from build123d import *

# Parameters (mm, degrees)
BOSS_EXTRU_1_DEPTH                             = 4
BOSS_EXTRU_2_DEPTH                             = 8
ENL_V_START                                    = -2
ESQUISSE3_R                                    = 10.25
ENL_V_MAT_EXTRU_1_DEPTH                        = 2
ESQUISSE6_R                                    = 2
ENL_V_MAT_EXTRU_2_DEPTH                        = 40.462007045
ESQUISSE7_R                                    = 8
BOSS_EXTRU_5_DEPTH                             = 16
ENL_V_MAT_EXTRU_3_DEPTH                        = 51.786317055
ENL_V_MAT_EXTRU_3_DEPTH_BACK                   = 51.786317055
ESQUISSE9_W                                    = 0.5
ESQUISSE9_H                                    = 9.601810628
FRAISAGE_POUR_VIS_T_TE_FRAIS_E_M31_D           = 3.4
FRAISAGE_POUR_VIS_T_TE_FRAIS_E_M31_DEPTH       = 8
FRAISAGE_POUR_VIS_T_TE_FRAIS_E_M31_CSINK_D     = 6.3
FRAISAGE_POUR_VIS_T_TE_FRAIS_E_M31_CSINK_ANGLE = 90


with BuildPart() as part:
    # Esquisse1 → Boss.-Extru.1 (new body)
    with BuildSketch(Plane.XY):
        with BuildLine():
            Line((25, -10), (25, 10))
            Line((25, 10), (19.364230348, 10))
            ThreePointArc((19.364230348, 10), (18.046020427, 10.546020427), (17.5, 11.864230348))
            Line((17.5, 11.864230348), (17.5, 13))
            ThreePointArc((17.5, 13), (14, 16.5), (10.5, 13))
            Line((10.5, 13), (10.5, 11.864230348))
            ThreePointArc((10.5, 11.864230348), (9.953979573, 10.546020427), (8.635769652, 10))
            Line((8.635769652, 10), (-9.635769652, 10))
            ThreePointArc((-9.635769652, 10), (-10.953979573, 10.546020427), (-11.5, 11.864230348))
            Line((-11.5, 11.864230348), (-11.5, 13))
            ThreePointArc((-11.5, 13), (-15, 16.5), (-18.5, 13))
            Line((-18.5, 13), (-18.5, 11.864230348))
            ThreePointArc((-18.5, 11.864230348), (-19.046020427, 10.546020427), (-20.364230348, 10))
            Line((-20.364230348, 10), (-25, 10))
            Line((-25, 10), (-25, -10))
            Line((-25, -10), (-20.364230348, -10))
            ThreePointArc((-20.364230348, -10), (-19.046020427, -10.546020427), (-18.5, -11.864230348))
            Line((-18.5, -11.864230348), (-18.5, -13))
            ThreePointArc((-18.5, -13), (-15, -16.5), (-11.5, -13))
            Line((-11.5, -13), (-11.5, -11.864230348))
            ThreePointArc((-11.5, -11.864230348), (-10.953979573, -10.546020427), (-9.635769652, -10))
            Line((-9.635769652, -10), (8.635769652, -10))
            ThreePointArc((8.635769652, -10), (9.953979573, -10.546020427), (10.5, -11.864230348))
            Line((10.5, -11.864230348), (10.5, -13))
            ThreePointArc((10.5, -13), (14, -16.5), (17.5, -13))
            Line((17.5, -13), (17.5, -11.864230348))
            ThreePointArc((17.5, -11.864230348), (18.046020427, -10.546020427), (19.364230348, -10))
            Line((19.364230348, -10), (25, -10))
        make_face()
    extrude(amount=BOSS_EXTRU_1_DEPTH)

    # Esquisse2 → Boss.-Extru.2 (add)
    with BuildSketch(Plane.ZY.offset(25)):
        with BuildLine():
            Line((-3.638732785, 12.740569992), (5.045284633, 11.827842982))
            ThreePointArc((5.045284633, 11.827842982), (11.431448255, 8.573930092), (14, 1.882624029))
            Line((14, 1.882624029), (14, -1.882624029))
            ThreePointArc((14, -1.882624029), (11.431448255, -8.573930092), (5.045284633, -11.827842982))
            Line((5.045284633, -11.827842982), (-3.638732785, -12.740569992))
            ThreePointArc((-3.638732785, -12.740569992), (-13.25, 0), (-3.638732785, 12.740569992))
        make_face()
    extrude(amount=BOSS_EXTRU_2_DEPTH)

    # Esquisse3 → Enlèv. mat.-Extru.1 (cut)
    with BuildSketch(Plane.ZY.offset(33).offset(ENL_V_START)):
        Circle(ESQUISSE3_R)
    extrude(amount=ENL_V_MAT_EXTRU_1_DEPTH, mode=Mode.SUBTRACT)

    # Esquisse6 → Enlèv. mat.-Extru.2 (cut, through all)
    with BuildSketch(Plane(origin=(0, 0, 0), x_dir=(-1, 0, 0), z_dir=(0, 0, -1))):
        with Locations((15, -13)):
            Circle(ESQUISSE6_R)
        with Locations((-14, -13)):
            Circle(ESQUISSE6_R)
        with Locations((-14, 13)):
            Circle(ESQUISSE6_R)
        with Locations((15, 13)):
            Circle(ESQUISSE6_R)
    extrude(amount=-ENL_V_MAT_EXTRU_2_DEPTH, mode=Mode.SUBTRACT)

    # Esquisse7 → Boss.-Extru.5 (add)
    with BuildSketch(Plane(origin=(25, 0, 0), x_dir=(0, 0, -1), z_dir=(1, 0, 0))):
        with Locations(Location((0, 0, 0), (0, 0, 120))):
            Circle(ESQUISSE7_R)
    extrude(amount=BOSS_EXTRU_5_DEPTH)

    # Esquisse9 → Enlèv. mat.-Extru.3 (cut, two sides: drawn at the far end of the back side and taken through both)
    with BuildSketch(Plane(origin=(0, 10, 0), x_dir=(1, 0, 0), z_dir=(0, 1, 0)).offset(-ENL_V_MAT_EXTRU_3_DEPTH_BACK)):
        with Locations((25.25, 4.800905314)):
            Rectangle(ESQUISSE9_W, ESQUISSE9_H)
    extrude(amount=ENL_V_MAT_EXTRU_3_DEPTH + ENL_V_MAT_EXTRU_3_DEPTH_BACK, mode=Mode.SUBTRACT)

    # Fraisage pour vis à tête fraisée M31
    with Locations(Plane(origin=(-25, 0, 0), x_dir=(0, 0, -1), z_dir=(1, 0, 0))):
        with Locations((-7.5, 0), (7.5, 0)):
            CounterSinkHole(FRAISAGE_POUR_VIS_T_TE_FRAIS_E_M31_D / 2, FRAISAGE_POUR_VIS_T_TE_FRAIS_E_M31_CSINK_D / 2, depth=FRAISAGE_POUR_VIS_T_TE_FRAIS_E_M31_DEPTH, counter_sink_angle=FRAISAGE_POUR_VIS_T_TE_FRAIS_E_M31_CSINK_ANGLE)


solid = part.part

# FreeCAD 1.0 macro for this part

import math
import FreeCAD as App
import Part
import Sketcher
Q = App.Units.Quantity

doc = App.newDocument("Part")
params = doc.addObject("Spreadsheet::Sheet", "Params")
for row, (alias, value) in enumerate([
    ("sketch1_radius", "3.5 mm"),
    ("sketch1_height", "20 mm"),
    ("pad1_length", "4 mm"),
    ("sketch2_radius", "10 mm"),
    ("sketch2_radius2", "13.25 mm"),
    ("pad2_length", "8 mm"),
    ("sketch3_diameter", "20.5 mm"),
    ("pocket1_length", "2 mm"),
    ("sketch4_diameter", "4 mm"),
    ("sketch5_diameter", "16 mm"),
    ("pad3_length", "16 mm"),
    ("sketch6_width", "0.5 mm"),
    ("sketch7_diameter", "3.4 mm"),
    ("hole_diameter", "3.4 mm"),
    ("hole_depth", "8 mm"),
    ("hole_csink_diameter", "6.3 mm"),
], start=1):
    params.set(f"A{row}", alias)
    params.set(f"B{row}", "=" + value)
    params.setAlias(f"B{row}", alias)

body = doc.addObject("PartDesign::Body", "Body")

sketch1 = body.newObject("Sketcher::SketchObject", "Sketch")
sketch1.AttachmentSupport = (doc.getObject("XY_Plane"), [""])
sketch1.MapMode = "FlatFace"
sketch1.addGeometry(Part.LineSegment(App.Vector(25, -10, 0), App.Vector(25, 10, 0)), False)
sketch1.addGeometry(Part.LineSegment(App.Vector(25, 10, 0), App.Vector(19.4, 10, 0)), False)
sketch1.addGeometry(Part.ArcOfCircle(Part.Circle(App.Vector(19.4, 11.9, 0), App.Vector(0, 0, 1), 1.9), math.radians(180), math.radians(270)), False)
sketch1.addGeometry(Part.LineSegment(App.Vector(17.5, 11.9, 0), App.Vector(17.5, 13, 0)), False)
sketch1.addGeometry(Part.ArcOfCircle(Part.Circle(App.Vector(14, 13, 0), App.Vector(0, 0, 1), 3.5), math.radians(0), math.radians(180)), False)
sketch1.addGeometry(Part.LineSegment(App.Vector(10.5, 13, 0), App.Vector(10.5, 11.9, 0)), False)
sketch1.addGeometry(Part.ArcOfCircle(Part.Circle(App.Vector(8.6, 11.9, 0), App.Vector(0, 0, 1), 1.9), math.radians(-90), math.radians(0)), False)
sketch1.addGeometry(Part.LineSegment(App.Vector(8.6, 10, 0), App.Vector(-9.6, 10, 0)), False)
sketch1.addGeometry(Part.ArcOfCircle(Part.Circle(App.Vector(-9.6, 11.9, 0), App.Vector(0, 0, 1), 1.9), math.radians(180), math.radians(270)), False)
sketch1.addGeometry(Part.LineSegment(App.Vector(-11.5, 11.9, 0), App.Vector(-11.5, 13, 0)), False)
sketch1.addGeometry(Part.ArcOfCircle(Part.Circle(App.Vector(-15, 13, 0), App.Vector(0, 0, 1), 3.5), math.radians(0), math.radians(180)), False)
sketch1.addGeometry(Part.LineSegment(App.Vector(-18.5, 13, 0), App.Vector(-18.5, 11.9, 0)), False)
sketch1.addGeometry(Part.ArcOfCircle(Part.Circle(App.Vector(-20.4, 11.9, 0), App.Vector(0, 0, 1), 1.9), math.radians(-90), math.radians(0)), False)
sketch1.addGeometry(Part.LineSegment(App.Vector(-20.4, 10, 0), App.Vector(-25, 10, 0)), False)
sketch1.addGeometry(Part.LineSegment(App.Vector(-25, 10, 0), App.Vector(-25, -10, 0)), False)
sketch1.addGeometry(Part.LineSegment(App.Vector(-25, -10, 0), App.Vector(-20.4, -10, 0)), False)
sketch1.addGeometry(Part.ArcOfCircle(Part.Circle(App.Vector(-20.4, -11.9, 0), App.Vector(0, 0, 1), 1.9), math.radians(0), math.radians(90)), False)
sketch1.addGeometry(Part.LineSegment(App.Vector(-18.5, -11.9, 0), App.Vector(-18.5, -13, 0)), False)
sketch1.addGeometry(Part.ArcOfCircle(Part.Circle(App.Vector(-15, -13, 0), App.Vector(0, 0, 1), 3.5), math.radians(180), math.radians(360)), False)
sketch1.addGeometry(Part.LineSegment(App.Vector(-11.5, -13, 0), App.Vector(-11.5, -11.9, 0)), False)
sketch1.addGeometry(Part.ArcOfCircle(Part.Circle(App.Vector(-9.6, -11.9, 0), App.Vector(0, 0, 1), 1.9), math.radians(90), math.radians(180)), False)
sketch1.addGeometry(Part.LineSegment(App.Vector(-9.6, -10, 0), App.Vector(8.6, -10, 0)), False)
sketch1.addGeometry(Part.ArcOfCircle(Part.Circle(App.Vector(8.6, -11.9, 0), App.Vector(0, 0, 1), 1.9), math.radians(0), math.radians(90)), False)
sketch1.addGeometry(Part.LineSegment(App.Vector(10.5, -11.9, 0), App.Vector(10.5, -13, 0)), False)
sketch1.addGeometry(Part.ArcOfCircle(Part.Circle(App.Vector(14, -13, 0), App.Vector(0, 0, 1), 3.5), math.radians(180), math.radians(360)), False)
sketch1.addGeometry(Part.LineSegment(App.Vector(17.5, -13, 0), App.Vector(17.5, -11.9, 0)), False)
sketch1.addGeometry(Part.ArcOfCircle(Part.Circle(App.Vector(19.4, -11.9, 0), App.Vector(0, 0, 1), 1.9), math.radians(90), math.radians(180)), False)
sketch1.addGeometry(Part.LineSegment(App.Vector(19.4, -10, 0), App.Vector(25, -10, 0)), False)
sketch1.addConstraint(Sketcher.Constraint("Coincident", 0, 2, 1, 1))
sketch1.addConstraint(Sketcher.Constraint("Tangent", 1, 2, 2, 2))
sketch1.addConstraint(Sketcher.Constraint("Tangent", 2, 1, 3, 1))
sketch1.addConstraint(Sketcher.Constraint("Tangent", 3, 2, 4, 1))
sketch1.addConstraint(Sketcher.Constraint("Tangent", 4, 2, 5, 1))
sketch1.addConstraint(Sketcher.Constraint("Tangent", 5, 2, 6, 2))
sketch1.addConstraint(Sketcher.Constraint("Tangent", 6, 1, 7, 1))
sketch1.addConstraint(Sketcher.Constraint("Tangent", 7, 2, 8, 2))
sketch1.addConstraint(Sketcher.Constraint("Tangent", 8, 1, 9, 1))
sketch1.addConstraint(Sketcher.Constraint("Tangent", 9, 2, 10, 1))
sketch1.addConstraint(Sketcher.Constraint("Tangent", 10, 2, 11, 1))
sketch1.addConstraint(Sketcher.Constraint("Tangent", 11, 2, 12, 2))
sketch1.addConstraint(Sketcher.Constraint("Tangent", 12, 1, 13, 1))
sketch1.addConstraint(Sketcher.Constraint("Coincident", 13, 2, 14, 1))
sketch1.addConstraint(Sketcher.Constraint("Coincident", 14, 2, 15, 1))
sketch1.addConstraint(Sketcher.Constraint("Tangent", 15, 2, 16, 2))
sketch1.addConstraint(Sketcher.Constraint("Tangent", 16, 1, 17, 1))
sketch1.addConstraint(Sketcher.Constraint("Tangent", 17, 2, 18, 1))
sketch1.addConstraint(Sketcher.Constraint("Tangent", 18, 2, 19, 1))
sketch1.addConstraint(Sketcher.Constraint("Tangent", 19, 2, 20, 2))
sketch1.addConstraint(Sketcher.Constraint("Tangent", 20, 1, 21, 1))
sketch1.addConstraint(Sketcher.Constraint("Tangent", 21, 2, 22, 2))
sketch1.addConstraint(Sketcher.Constraint("Tangent", 22, 1, 23, 1))
sketch1.addConstraint(Sketcher.Constraint("Tangent", 23, 2, 24, 1))
sketch1.addConstraint(Sketcher.Constraint("Tangent", 24, 2, 25, 1))
sketch1.addConstraint(Sketcher.Constraint("Tangent", 25, 2, 26, 2))
sketch1.addConstraint(Sketcher.Constraint("Tangent", 26, 1, 27, 1))
sketch1.addConstraint(Sketcher.Constraint("Coincident", 27, 2, 0, 1))
sketch1.addConstraint(Sketcher.Constraint("Vertical", 0))
sketch1.addConstraint(Sketcher.Constraint("Horizontal", 1))
sketch1.addConstraint(Sketcher.Constraint("Vertical", 3))
sketch1.addConstraint(Sketcher.Constraint("Vertical", 5))
sketch1.addConstraint(Sketcher.Constraint("Horizontal", 7))
sketch1.addConstraint(Sketcher.Constraint("Vertical", 9))
sketch1.addConstraint(Sketcher.Constraint("Vertical", 11))
sketch1.addConstraint(Sketcher.Constraint("Horizontal", 13))
sketch1.addConstraint(Sketcher.Constraint("Vertical", 14))
sketch1.addConstraint(Sketcher.Constraint("Horizontal", 15))
sketch1.addConstraint(Sketcher.Constraint("Vertical", 17))
sketch1.addConstraint(Sketcher.Constraint("Vertical", 19))
sketch1.addConstraint(Sketcher.Constraint("Horizontal", 21))
sketch1.addConstraint(Sketcher.Constraint("Vertical", 23))
sketch1.addConstraint(Sketcher.Constraint("Vertical", 25))
sketch1.addConstraint(Sketcher.Constraint("Horizontal", 27))
sketch1.addConstraint(Sketcher.Constraint("Equal", 2, 6))
sketch1.addConstraint(Sketcher.Constraint("Equal", 6, 8))
sketch1.addConstraint(Sketcher.Constraint("Equal", 4, 10))
sketch1.addConstraint(Sketcher.Constraint("Equal", 8, 12))
sketch1.addConstraint(Sketcher.Constraint("Equal", 12, 16))
sketch1.addConstraint(Sketcher.Constraint("Equal", 10, 18))
sketch1.addConstraint(Sketcher.Constraint("Equal", 16, 20))
sketch1.addConstraint(Sketcher.Constraint("Equal", 20, 22))
sketch1.addConstraint(Sketcher.Constraint("Equal", 18, 24))
sketch1.addConstraint(Sketcher.Constraint("Equal", 22, 26))
sketch1.addConstraint(Sketcher.Constraint("Symmetric", 0, 2, 14, 2, -1, 1))
sketch1.addConstraint(Sketcher.Constraint("Symmetric", 12, 3, 16, 3, -1))
sketch1.addConstraint(Sketcher.Constraint("Symmetric", 6, 3, 22, 3, -1))
sketch1.addConstraint(Sketcher.Constraint("Horizontal", 2, 3, 6, 3))
sketch1.addConstraint(Sketcher.Constraint("Horizontal", 4, 3, 10, 3))
sketch1.addConstraint(Sketcher.Constraint("Horizontal", 18, 3, 24, 3))
sketch1.addConstraint(Sketcher.Constraint("Horizontal", 22, 3, 26, 3))
sketch1.addConstraint(Sketcher.Constraint("Equal", 11, 17))
sketch1.addConstraint(Sketcher.Constraint("Radius", 4, 3.5))
sketch1.addConstraint(Sketcher.Constraint("DistanceY", 0, 1, 0, 2, 20.0))
sketch1.addConstraint(Sketcher.Constraint("DistanceX", -1, 1, 4, 3, 14.0))
sketch1.addConstraint(Sketcher.Constraint("DistanceY", -1, 1, 4, 3, 13.0))
sketch1.addConstraint(Sketcher.Constraint("DistanceX", 10, 3, -1, 1, 15.0))
sketch1.addConstraint(Sketcher.Constraint("DistanceX", -1, 1, 0, 2, 25.0))
sketch1.addConstraint(Sketcher.Constraint("Radius", 2, 1.86423))
sketch1.setExpression("Constraints[62]", "Params.sketch1_radius")
sketch1.setExpression("Constraints[63]", "Params.sketch1_height")
pad1 = body.newObject("PartDesign::Pad", "Pad")
pad1.Profile = sketch1
pad1.setExpression("Length", "Params.pad1_length")

sketch2 = body.newObject("Sketcher::SketchObject", "Sketch001")
sketch2.AttachmentSupport = (doc.getObject("YZ_Plane"), [""])
sketch2.MapMode = "FlatFace"
sketch2.AttachmentOffset = App.Placement(App.Vector(0, 0, -25), App.Rotation())
sketch2.addGeometry(Part.LineSegment(App.Vector(11.8, 5, 0), App.Vector(12.7, -3.6, 0)), False)
sketch2.addGeometry(Part.ArcOfCircle(Part.Circle(App.Vector(0, 0, 0), App.Vector(0, 0, 1), 13.2), math.radians(-164), math.radians(-16)), False)
sketch2.addGeometry(Part.LineSegment(App.Vector(-12.7, -3.6, 0), App.Vector(-11.8, 5, 0)), False)
sketch2.addGeometry(Part.ArcOfCircle(Part.Circle(App.Vector(-1.9, 4, 0), App.Vector(0, 0, 1), 10), math.radians(90), math.radians(174)), False)
sketch2.addGeometry(Part.LineSegment(App.Vector(-1.9, 14, 0), App.Vector(1.9, 14, 0)), False)
sketch2.addGeometry(Part.ArcOfCircle(Part.Circle(App.Vector(1.9, 4, 0), App.Vector(0, 0, 1), 10), math.radians(6), math.radians(90)), False)
sketch2.addConstraint(Sketcher.Constraint("Coincident", 0, 2, 1, 2))
sketch2.addConstraint(Sketcher.Constraint("Coincident", 1, 1, 2, 1))
sketch2.addConstraint(Sketcher.Constraint("Tangent", 2, 2, 3, 2))
sketch2.addConstraint(Sketcher.Constraint("Tangent", 3, 1, 4, 1))
sketch2.addConstraint(Sketcher.Constraint("Tangent", 4, 2, 5, 2))
sketch2.addConstraint(Sketcher.Constraint("Tangent", 5, 1, 0, 1))
sketch2.addConstraint(Sketcher.Constraint("Horizontal", 4))
sketch2.addConstraint(Sketcher.Constraint("Coincident", 1, 3, -1, 1))
sketch2.addConstraint(Sketcher.Constraint("Equal", 3, 5))
sketch2.addConstraint(Sketcher.Constraint("Symmetric", 2, 2, 5, 1, -2))
sketch2.addConstraint(Sketcher.Constraint("Radius", 3, 10.0))
sketch2.addConstraint(Sketcher.Constraint("Angle", 0, Q("-84 deg")))
sketch2.addConstraint(Sketcher.Constraint("Radius", 1, 13.25))
sketch2.addConstraint(Sketcher.Constraint("DistanceY", -1, 1, 3, 3, 4.0))
sketch2.addConstraint(Sketcher.Constraint("DistanceX", 4, 1, 4, 2, 3.765248))
sketch2.setExpression("Constraints[10]", "Params.sketch2_radius")
sketch2.setExpression("Constraints[12]", "Params.sketch2_radius2")
pad2 = body.newObject("PartDesign::Pad", "Pad001")
pad2.Profile = sketch2
pad2.setExpression("Length", "Params.pad2_length")
pad2.Reversed = True

sketch3 = body.newObject("Sketcher::SketchObject", "Sketch002")
sketch3.AttachmentSupport = (doc.getObject("YZ_Plane"), [""])
sketch3.MapMode = "FlatFace"
sketch3.AttachmentOffset = App.Placement(App.Vector(0, 0, -31), App.Rotation())
sketch3.addGeometry(Part.Circle(App.Vector(0, 0, 0), App.Vector(0, 0, 1), 10), False)
sketch3.addConstraint(Sketcher.Constraint("Coincident", 0, 3, -1, 1))
sketch3.addConstraint(Sketcher.Constraint("Diameter", 0, 20.5))
sketch3.setExpression("Constraints[1]", "Params.sketch3_diameter")
pocket1 = body.newObject("PartDesign::Pocket", "Pocket")
pocket1.Profile = sketch3
pocket1.setExpression("Length", "Params.pocket1_length")

sketch4 = body.newObject("Sketcher::SketchObject", "Sketch003")
sketch4.AttachmentSupport = (doc.getObject("XY_Plane"), [""])
sketch4.MapMode = "FlatFace"
sketch4.addGeometry(Part.Circle(App.Vector(-15, -13, 0), App.Vector(0, 0, 1), 2), False)
sketch4.addGeometry(Part.Circle(App.Vector(14, -13, 0), App.Vector(0, 0, 1), 2), False)
sketch4.addGeometry(Part.Circle(App.Vector(14, 13, 0), App.Vector(0, 0, 1), 2), False)
sketch4.addGeometry(Part.Circle(App.Vector(-15, 13, 0), App.Vector(0, 0, 1), 2), False)
sketch4.addConstraint(Sketcher.Constraint("Equal", 0, 1))
sketch4.addConstraint(Sketcher.Constraint("Equal", 1, 2))
sketch4.addConstraint(Sketcher.Constraint("Equal", 2, 3))
sketch4.addConstraint(Sketcher.Constraint("Symmetric", 1, 3, 2, 3, -1))
sketch4.addConstraint(Sketcher.Constraint("Symmetric", 0, 3, 3, 3, -1))
sketch4.addConstraint(Sketcher.Constraint("Horizontal", 0, 3, 1, 3))
sketch4.addConstraint(Sketcher.Constraint("Diameter", 0, 4.0))
sketch4.addConstraint(Sketcher.Constraint("DistanceX", 0, 3, -1, 1, 15.0))
sketch4.addConstraint(Sketcher.Constraint("DistanceY", 0, 3, -1, 1, 13.0))
sketch4.addConstraint(Sketcher.Constraint("DistanceX", -1, 1, 1, 3, 14.0))
sketch4.setExpression("Constraints[6]", "Params.sketch4_diameter")
pocket2 = body.newObject("PartDesign::Pocket", "Pocket001")
pocket2.Profile = sketch4
pocket2.Type = "ThroughAll"
pocket2.Reversed = True

sketch5 = body.newObject("Sketcher::SketchObject", "Sketch004")
sketch5.AttachmentSupport = (doc.getObject("YZ_Plane"), [""])
sketch5.MapMode = "FlatFace"
sketch5.AttachmentOffset = App.Placement(App.Vector(0, 0, 25), App.Rotation())
sketch5.addGeometry(Part.Circle(App.Vector(0, 0, 0), App.Vector(0, 0, 1), 8), False)
sketch5.addConstraint(Sketcher.Constraint("Coincident", 0, 3, -1, 1))
sketch5.addConstraint(Sketcher.Constraint("Diameter", 0, 16.0))
sketch5.setExpression("Constraints[1]", "Params.sketch5_diameter")
pad3 = body.newObject("PartDesign::Pad", "Pad002")
pad3.Profile = sketch5
pad3.setExpression("Length", "Params.pad3_length")

sketch6 = body.newObject("Sketcher::SketchObject", "Sketch005")
sketch6.AttachmentSupport = (doc.getObject("XZ_Plane"), [""])
sketch6.MapMode = "FlatFace"
sketch6.AttachmentOffset = App.Placement(App.Vector(0, 0, -10), App.Rotation())
sketch6.addGeometry(Part.LineSegment(App.Vector(25, -9.6, 0), App.Vector(25, 0, 0)), False)
sketch6.addGeometry(Part.LineSegment(App.Vector(25, 0, 0), App.Vector(25.5, 0, 0)), False)
sketch6.addGeometry(Part.LineSegment(App.Vector(25.5, 0, 0), App.Vector(25.5, -9.6, 0)), False)
sketch6.addGeometry(Part.LineSegment(App.Vector(25.5, -9.6, 0), App.Vector(25, -9.6, 0)), False)
sketch6.addConstraint(Sketcher.Constraint("Coincident", 0, 2, 1, 1))
sketch6.addConstraint(Sketcher.Constraint("Coincident", 1, 2, 2, 1))
sketch6.addConstraint(Sketcher.Constraint("Coincident", 2, 2, 3, 1))
sketch6.addConstraint(Sketcher.Constraint("Coincident", 3, 2, 0, 1))
sketch6.addConstraint(Sketcher.Constraint("Vertical", 0))
sketch6.addConstraint(Sketcher.Constraint("Horizontal", 1))
sketch6.addConstraint(Sketcher.Constraint("Vertical", 2))
sketch6.addConstraint(Sketcher.Constraint("Horizontal", 3))
sketch6.addConstraint(Sketcher.Constraint("PointOnObject", 0, 2, -1))
sketch6.addConstraint(Sketcher.Constraint("DistanceX", 1, 1, 1, 2, 0.5))
sketch6.addConstraint(Sketcher.Constraint("DistanceX", -1, 1, 0, 2, 25.0))
sketch6.addConstraint(Sketcher.Constraint("DistanceY", 0, 1, 0, 2, 9.601811))
sketch6.setExpression("Constraints[9]", "Params.sketch6_width")
pocket3 = body.newObject("PartDesign::Pocket", "Pocket002")
pocket3.Profile = sketch6
pocket3.Type = "ThroughAll"
pocket3.Midplane = True

sketch7 = body.newObject("Sketcher::SketchObject", "Sketch006")
sketch7.AttachmentSupport = (doc.getObject("YZ_Plane"), [""])
sketch7.MapMode = "FlatFace"
sketch7.AttachmentOffset = App.Placement(App.Vector(0, 0, -25), App.Rotation())
sketch7.addGeometry(Part.Circle(App.Vector(0, 7.5, 0), App.Vector(0, 0, 1), 1.7), False)
sketch7.addGeometry(Part.Circle(App.Vector(0, -7.5, 0), App.Vector(0, 0, 1), 1.7), False)
sketch7.addConstraint(Sketcher.Constraint("Equal", 0, 1))
sketch7.addConstraint(Sketcher.Constraint("Symmetric", 0, 3, 1, 3, -1, 1))
sketch7.addConstraint(Sketcher.Constraint("PointOnObject", 0, 3, -2))
sketch7.addConstraint(Sketcher.Constraint("Diameter", 0, 3.4))
sketch7.addConstraint(Sketcher.Constraint("DistanceY", 1, 3, 0, 3, 15.0))
sketch7.setExpression("Constraints[3]", "Params.sketch7_diameter")
doc.recompute()
hole = body.newObject("PartDesign::Hole", "Hole")
hole.Profile = sketch7
hole.ThreadType = "None"
hole.setExpression("Diameter", "Params.hole_diameter")
hole.DepthType = "Dimension"
hole.setExpression("Depth", "Params.hole_depth")
hole.DrillPoint = "Flat"
hole.HoleCutType = "Countersink"
hole.setExpression("HoleCutDiameter", "Params.hole_csink_diameter")
hole.HoleCutCountersinkAngle = 90

doc.recompute()
